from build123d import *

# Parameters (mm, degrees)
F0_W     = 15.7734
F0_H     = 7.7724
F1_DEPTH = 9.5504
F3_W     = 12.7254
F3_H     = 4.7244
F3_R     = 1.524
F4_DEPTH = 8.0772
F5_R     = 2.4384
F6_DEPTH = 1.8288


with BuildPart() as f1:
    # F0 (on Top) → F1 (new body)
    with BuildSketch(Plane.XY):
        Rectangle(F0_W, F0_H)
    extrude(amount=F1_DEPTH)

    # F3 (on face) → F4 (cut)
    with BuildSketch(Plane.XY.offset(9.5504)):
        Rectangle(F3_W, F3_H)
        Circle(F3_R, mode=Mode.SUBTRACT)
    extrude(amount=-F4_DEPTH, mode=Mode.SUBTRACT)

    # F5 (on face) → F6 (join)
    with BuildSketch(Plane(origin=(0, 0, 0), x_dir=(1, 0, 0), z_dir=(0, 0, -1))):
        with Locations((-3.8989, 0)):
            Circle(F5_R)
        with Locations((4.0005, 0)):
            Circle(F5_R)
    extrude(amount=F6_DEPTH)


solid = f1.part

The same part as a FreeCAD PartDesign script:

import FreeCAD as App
import Part
import Sketcher
Q = App.Units.Quantity

doc = App.newDocument("Part")
body = doc.addObject("PartDesign::Body", "Body")

# Sketch on XY plane
sketch1 = body.newObject("Sketcher::SketchObject", "Sketch")
sketch1.AttachmentSupport = (doc.getObject("XY_Plane"), [""])
sketch1.MapMode = "FlatFace"
sketch1.addGeometry([
    Part.LineSegment(App.Vector(-7.8867, 3.8862, 0), App.Vector(-7.8867, -3.8862, 0)),
    Part.LineSegment(App.Vector(-7.8867, -3.8862, 0), App.Vector(7.8867, -3.8862, 0)),
    Part.LineSegment(App.Vector(7.8867, -3.8862, 0), App.Vector(7.8867, 3.8862, 0)),
    Part.LineSegment(App.Vector(7.8867, 3.8862, 0), App.Vector(-7.8867, 3.8862, 0)),
], False)
sketch1.addConstraint([
    Sketcher.Constraint("Coincident", 0, 2, 1, 1),
    Sketcher.Constraint("Coincident", 1, 2, 2, 1),
    Sketcher.Constraint("Coincident", 2, 2, 3, 1),
    Sketcher.Constraint("Coincident", 3, 2, 0, 1),
    Sketcher.Constraint("Vertical", 0),
    Sketcher.Constraint("Horizontal", 1),
    Sketcher.Constraint("Vertical", 2),
    Sketcher.Constraint("Horizontal", 3),
    Sketcher.Constraint("Symmetric", 0, 2, 2, 2, -1, 1),
    Sketcher.Constraint("DistanceX", 1, 1, 1, 2, Q("0.621 in")),
    Sketcher.Constraint("DistanceY", 0, 2, 0, 1, Q("0.306 in")),
])
pad1 = body.newObject("PartDesign::Pad", "Pad")
pad1.Profile = sketch1
pad1.Length = Q("0.376 in")

# Sketch on XY plane
sketch2 = body.newObject("Sketcher::SketchObject", "Sketch001")
sketch2.AttachmentSupport = (doc.getObject("XY_Plane"), [""])
sketch2.MapMode = "FlatFace"
sketch2.AttachmentOffset = App.Placement(App.Vector(0, 0, 0.376 * 25.4), App.Rotation())
sketch2.addGeometry([
    Part.LineSegment(App.Vector(-6.3627, 2.3622, 0), App.Vector(-6.3627, -2.3622, 0)),  # 0
    Part.LineSegment(App.Vector(-6.3627, -2.3622, 0), App.Vector(6.3627, -2.3622, 0)),  # 1
    Part.LineSegment(App.Vector(6.3627, -2.3622, 0), App.Vector(6.3627, 2.3622, 0)),  # 2
    Part.LineSegment(App.Vector(6.3627, 2.3622, 0), App.Vector(-6.3627, 2.3622, 0)),  # 3
    Part.Circle(App.Vector(0, 0, 0), App.Vector(0, 0, 1), 1.524),  # 4
], False)
sketch2.addConstraint([
    Sketcher.Constraint("Coincident", 0, 2, 1, 1),
    Sketcher.Constraint("Coincident", 1, 2, 2, 1),
    Sketcher.Constraint("Coincident", 2, 2, 3, 1),
    Sketcher.Constraint("Coincident", 3, 2, 0, 1),
    Sketcher.Constraint("Vertical", 0),
    Sketcher.Constraint("Horizontal", 1),
    Sketcher.Constraint("Vertical", 2),
    Sketcher.Constraint("Horizontal", 3),
    Sketcher.Constraint("Coincident", 4, 3, -1, 1),
    Sketcher.Constraint("Symmetric", 0, 2, 2, 2, -1, 1),
    Sketcher.Constraint("Diameter", 4, Q("0.12 in")),
    Sketcher.Constraint("DistanceX", 1, 1, 1, 2, Q("0.501 in")),
    Sketcher.Constraint("DistanceY", 0, 2, 0, 1, Q("0.186 in")),
])
pocket1 = body.newObject("PartDesign::Pocket", "Pocket")
pocket1.Profile = sketch2
pocket1.Length = Q("0.318 in")

# Sketch on XY plane
sketch3 = body.newObject("Sketcher::SketchObject", "Sketch002")
sketch3.AttachmentSupport = (doc.getObject("XY_Plane"), [""])
sketch3.MapMode = "FlatFace"
sketch3.addGeometry([
    Part.Circle(App.Vector(-3.8989, 0, 0), App.Vector(0, 0, 1), 2.4384),
    Part.Circle(App.Vector(4.0005, 0, 0), App.Vector(0, 0, 1), 2.4384),
], False)
sketch3.addConstraint([
    Sketcher.Constraint("Equal", 0, 1),
    Sketcher.Constraint("PointOnObject", 0, 3, -1),
    Sketcher.Constraint("PointOnObject", 1, 3, -1),
    Sketcher.Constraint("Diameter", 0, Q("0.192 in")),
    Sketcher.Constraint("DistanceX", 0, 3, 1, 3, Q("0.311 in")),
    Sketcher.Constraint("DistanceX", 0, 3, -1, 1, Q("0.1535 in")),
])
pad2 = body.newObject("PartDesign::Pad", "Pad001")
pad2.Profile = sketch3
pad2.Length = Q("0.072 in")
pad2.Reversed = True

doc.recompute()
